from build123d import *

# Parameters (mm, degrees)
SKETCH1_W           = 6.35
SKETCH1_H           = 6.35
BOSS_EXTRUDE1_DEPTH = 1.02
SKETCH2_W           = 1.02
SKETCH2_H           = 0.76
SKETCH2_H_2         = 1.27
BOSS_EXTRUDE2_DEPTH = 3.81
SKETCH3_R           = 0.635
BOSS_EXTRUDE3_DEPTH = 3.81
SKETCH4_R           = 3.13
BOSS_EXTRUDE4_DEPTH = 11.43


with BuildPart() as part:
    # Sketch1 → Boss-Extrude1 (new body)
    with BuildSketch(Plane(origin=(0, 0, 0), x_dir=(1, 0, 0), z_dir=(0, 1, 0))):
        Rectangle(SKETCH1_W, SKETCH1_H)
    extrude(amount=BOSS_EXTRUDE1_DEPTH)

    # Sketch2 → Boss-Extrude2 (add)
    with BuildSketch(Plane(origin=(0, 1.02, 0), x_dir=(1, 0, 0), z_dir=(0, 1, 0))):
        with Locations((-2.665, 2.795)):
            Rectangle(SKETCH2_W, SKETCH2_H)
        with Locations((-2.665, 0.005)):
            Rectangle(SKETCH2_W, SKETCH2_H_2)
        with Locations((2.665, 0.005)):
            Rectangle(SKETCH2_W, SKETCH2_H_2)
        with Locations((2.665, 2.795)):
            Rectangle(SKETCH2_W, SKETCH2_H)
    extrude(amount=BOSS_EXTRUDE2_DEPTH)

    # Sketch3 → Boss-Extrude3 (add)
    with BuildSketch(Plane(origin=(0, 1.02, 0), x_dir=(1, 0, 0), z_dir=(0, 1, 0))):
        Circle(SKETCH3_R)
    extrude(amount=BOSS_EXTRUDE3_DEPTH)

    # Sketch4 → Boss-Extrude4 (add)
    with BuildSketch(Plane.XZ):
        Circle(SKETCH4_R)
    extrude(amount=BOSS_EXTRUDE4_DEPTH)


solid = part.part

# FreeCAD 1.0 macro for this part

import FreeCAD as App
import Part
import Sketcher
Q = App.Units.Quantity


def add_polygon(sketch, points):
    """Adds a closed chain of lines whose ends are joined by coincident constraints."""
    first, n = sketch.GeometryCount, len(points)
    for a, b in zip(points, points[1:] + points[:1]):
        sketch.addGeometry(Part.LineSegment(App.Vector(*a, 0), App.Vector(*b, 0)), False)
    for i in range(n):
        sketch.addConstraint(Sketcher.Constraint("Coincident", first + i, 2, first + (i + 1) % n, 1))

doc = App.newDocument("Part")
body = doc.addObject("PartDesign::Body", "Body")

sketch1 = body.newObject("Sketcher::SketchObject", "Sketch")
sketch1.AttachmentSupport = (doc.getObject("XZ_Plane"), [""])
sketch1.MapMode = "FlatFace"
add_polygon(sketch1, [(-3, -3), (-3, 3), (3, 3), (3, -3)])
sketch1.addConstraint([
    Sketcher.Constraint("Vertical", 0),
    Sketcher.Constraint("Horizontal", 1),
    Sketcher.Constraint("Vertical", 2),
    Sketcher.Constraint("Horizontal", 3),
    Sketcher.Constraint("Symmetric", 0, 2, 2, 2, -1, 1),
    Sketcher.Constraint("Equal", 3, 0),
    Sketcher.Constraint("DistanceX", 1, 1, 1, 2, Q("0.25 in")),
])
pad1 = body.newObject("PartDesign::Pad", "Pad")
pad1.Profile = sketch1
pad1.Length = 1.02
pad1.Reversed = True

sketch2 = body.newObject("Sketcher::SketchObject", "Sketch001")
sketch2.AttachmentSupport = (doc.getObject("XZ_Plane"), [""])
sketch2.MapMode = "FlatFace"
sketch2.AttachmentOffset = App.Placement(App.Vector(0, 0, -1.02), App.Rotation())
add_polygon(sketch2, [(-3.2, -3.2), (-3.2, -2.4), (-2.2, -2.4), (-2.2, -3.2)])
add_polygon(sketch2, [(-3.2, -0.6), (-3.2, 0.6), (-2.2, 0.6), (-2.2, -0.6)])
add_polygon(sketch2, [(2.2, -0.6), (2.2, 0.6), (3.2, 0.6), (3.2, -0.6)])
add_polygon(sketch2, [(2.2, -3.2), (2.2, -2.4), (3.2, -2.4), (3.2, -3.2)])
sketch2.addConstraint([
    Sketcher.Constraint("Vertical", 0),
    Sketcher.Constraint("Horizontal", 1),
    Sketcher.Constraint("Vertical", 2),
    Sketcher.Constraint("Horizontal", 3),
    Sketcher.Constraint("Vertical", 4),
    Sketcher.Constraint("Horizontal", 5),
    Sketcher.Constraint("Vertical", 6),
    Sketcher.Constraint("Horizontal", 7),
    Sketcher.Constraint("Vertical", 8),
    Sketcher.Constraint("Horizontal", 9),
    Sketcher.Constraint("Vertical", 10),
    Sketcher.Constraint("Horizontal", 11),
    Sketcher.Constraint("Vertical", 12),
    Sketcher.Constraint("Horizontal", 13),
    Sketcher.Constraint("Vertical", 14),
    Sketcher.Constraint("Horizontal", 15),
    Sketcher.Constraint("Symmetric", 5, 2, 8, 2, -2),
    Sketcher.Constraint("Symmetric", 7, 2, 10, 2, -2),
    Sketcher.Constraint("Symmetric", 1, 2, 12, 2, -2),
    Sketcher.Constraint("Symmetric", 3, 2, 14, 2, -2),
    Sketcher.Constraint("Vertical", 3, 2, 4, 2),
    Sketcher.Constraint("Vertical", 2, 2, 5, 2),
    Sketcher.Constraint("DistanceY", 4, 1, 4, 2, Q("0.05 in")),
    Sketcher.Constraint("DistanceX", 4, 2, 9, 2, Q("0.25 in")),
    Sketcher.Constraint("DistanceY", 2, 2, -1, 1, Q("0.125 in")),
    Sketcher.Constraint("DistanceX", 1, 1, 1, 2, 1.02),
    Sketcher.Constraint("DistanceY", 0, 1, 0, 2, 0.76),
    Sketcher.Constraint("DistanceY", -1, 1, 4, 2, 0.63),
])
pad2 = body.newObject("PartDesign::Pad", "Pad001")
pad2.Profile = sketch2
pad2.Length = Q("0.15 in")
pad2.Reversed = True

sketch3 = body.newObject("Sketcher::SketchObject", "Sketch002")
sketch3.AttachmentSupport = (doc.getObject("XZ_Plane"), [""])
sketch3.MapMode = "FlatFace"
sketch3.AttachmentOffset = App.Placement(App.Vector(0, 0, -1.02), App.Rotation())
sketch3.addGeometry(Part.Circle(App.Vector(0, 0, 0), App.Vector(0, 0, 1), 0.6), False)
sketch3.addConstraint([
    Sketcher.Constraint("Coincident", 0, 3, -1, 1),
    Sketcher.Constraint("Diameter", 0, Q("0.05 in")),
])
pad3 = body.newObject("PartDesign::Pad", "Pad002")
pad3.Profile = sketch3
pad3.Length = Q("0.15 in")
pad3.Reversed = True

sketch4 = body.newObject("Sketcher::SketchObject", "Sketch003")
sketch4.AttachmentSupport = (doc.getObject("XZ_Plane"), [""])
sketch4.MapMode = "FlatFace"
sketch4.addGeometry(Part.Circle(App.Vector(0, 0, 0), App.Vector(0, 0, 1), 3.1), False)
sketch4.addConstraint([
    Sketcher.Constraint("Coincident", 0, 3, -1, 1),
    Sketcher.Constraint("Diameter", 0, 6.26),
])
pad4 = body.newObject("PartDesign::Pad", "Pad003")
pad4.Profile = sketch4
pad4.Length = Q("0.45 in")

doc.recompute()
